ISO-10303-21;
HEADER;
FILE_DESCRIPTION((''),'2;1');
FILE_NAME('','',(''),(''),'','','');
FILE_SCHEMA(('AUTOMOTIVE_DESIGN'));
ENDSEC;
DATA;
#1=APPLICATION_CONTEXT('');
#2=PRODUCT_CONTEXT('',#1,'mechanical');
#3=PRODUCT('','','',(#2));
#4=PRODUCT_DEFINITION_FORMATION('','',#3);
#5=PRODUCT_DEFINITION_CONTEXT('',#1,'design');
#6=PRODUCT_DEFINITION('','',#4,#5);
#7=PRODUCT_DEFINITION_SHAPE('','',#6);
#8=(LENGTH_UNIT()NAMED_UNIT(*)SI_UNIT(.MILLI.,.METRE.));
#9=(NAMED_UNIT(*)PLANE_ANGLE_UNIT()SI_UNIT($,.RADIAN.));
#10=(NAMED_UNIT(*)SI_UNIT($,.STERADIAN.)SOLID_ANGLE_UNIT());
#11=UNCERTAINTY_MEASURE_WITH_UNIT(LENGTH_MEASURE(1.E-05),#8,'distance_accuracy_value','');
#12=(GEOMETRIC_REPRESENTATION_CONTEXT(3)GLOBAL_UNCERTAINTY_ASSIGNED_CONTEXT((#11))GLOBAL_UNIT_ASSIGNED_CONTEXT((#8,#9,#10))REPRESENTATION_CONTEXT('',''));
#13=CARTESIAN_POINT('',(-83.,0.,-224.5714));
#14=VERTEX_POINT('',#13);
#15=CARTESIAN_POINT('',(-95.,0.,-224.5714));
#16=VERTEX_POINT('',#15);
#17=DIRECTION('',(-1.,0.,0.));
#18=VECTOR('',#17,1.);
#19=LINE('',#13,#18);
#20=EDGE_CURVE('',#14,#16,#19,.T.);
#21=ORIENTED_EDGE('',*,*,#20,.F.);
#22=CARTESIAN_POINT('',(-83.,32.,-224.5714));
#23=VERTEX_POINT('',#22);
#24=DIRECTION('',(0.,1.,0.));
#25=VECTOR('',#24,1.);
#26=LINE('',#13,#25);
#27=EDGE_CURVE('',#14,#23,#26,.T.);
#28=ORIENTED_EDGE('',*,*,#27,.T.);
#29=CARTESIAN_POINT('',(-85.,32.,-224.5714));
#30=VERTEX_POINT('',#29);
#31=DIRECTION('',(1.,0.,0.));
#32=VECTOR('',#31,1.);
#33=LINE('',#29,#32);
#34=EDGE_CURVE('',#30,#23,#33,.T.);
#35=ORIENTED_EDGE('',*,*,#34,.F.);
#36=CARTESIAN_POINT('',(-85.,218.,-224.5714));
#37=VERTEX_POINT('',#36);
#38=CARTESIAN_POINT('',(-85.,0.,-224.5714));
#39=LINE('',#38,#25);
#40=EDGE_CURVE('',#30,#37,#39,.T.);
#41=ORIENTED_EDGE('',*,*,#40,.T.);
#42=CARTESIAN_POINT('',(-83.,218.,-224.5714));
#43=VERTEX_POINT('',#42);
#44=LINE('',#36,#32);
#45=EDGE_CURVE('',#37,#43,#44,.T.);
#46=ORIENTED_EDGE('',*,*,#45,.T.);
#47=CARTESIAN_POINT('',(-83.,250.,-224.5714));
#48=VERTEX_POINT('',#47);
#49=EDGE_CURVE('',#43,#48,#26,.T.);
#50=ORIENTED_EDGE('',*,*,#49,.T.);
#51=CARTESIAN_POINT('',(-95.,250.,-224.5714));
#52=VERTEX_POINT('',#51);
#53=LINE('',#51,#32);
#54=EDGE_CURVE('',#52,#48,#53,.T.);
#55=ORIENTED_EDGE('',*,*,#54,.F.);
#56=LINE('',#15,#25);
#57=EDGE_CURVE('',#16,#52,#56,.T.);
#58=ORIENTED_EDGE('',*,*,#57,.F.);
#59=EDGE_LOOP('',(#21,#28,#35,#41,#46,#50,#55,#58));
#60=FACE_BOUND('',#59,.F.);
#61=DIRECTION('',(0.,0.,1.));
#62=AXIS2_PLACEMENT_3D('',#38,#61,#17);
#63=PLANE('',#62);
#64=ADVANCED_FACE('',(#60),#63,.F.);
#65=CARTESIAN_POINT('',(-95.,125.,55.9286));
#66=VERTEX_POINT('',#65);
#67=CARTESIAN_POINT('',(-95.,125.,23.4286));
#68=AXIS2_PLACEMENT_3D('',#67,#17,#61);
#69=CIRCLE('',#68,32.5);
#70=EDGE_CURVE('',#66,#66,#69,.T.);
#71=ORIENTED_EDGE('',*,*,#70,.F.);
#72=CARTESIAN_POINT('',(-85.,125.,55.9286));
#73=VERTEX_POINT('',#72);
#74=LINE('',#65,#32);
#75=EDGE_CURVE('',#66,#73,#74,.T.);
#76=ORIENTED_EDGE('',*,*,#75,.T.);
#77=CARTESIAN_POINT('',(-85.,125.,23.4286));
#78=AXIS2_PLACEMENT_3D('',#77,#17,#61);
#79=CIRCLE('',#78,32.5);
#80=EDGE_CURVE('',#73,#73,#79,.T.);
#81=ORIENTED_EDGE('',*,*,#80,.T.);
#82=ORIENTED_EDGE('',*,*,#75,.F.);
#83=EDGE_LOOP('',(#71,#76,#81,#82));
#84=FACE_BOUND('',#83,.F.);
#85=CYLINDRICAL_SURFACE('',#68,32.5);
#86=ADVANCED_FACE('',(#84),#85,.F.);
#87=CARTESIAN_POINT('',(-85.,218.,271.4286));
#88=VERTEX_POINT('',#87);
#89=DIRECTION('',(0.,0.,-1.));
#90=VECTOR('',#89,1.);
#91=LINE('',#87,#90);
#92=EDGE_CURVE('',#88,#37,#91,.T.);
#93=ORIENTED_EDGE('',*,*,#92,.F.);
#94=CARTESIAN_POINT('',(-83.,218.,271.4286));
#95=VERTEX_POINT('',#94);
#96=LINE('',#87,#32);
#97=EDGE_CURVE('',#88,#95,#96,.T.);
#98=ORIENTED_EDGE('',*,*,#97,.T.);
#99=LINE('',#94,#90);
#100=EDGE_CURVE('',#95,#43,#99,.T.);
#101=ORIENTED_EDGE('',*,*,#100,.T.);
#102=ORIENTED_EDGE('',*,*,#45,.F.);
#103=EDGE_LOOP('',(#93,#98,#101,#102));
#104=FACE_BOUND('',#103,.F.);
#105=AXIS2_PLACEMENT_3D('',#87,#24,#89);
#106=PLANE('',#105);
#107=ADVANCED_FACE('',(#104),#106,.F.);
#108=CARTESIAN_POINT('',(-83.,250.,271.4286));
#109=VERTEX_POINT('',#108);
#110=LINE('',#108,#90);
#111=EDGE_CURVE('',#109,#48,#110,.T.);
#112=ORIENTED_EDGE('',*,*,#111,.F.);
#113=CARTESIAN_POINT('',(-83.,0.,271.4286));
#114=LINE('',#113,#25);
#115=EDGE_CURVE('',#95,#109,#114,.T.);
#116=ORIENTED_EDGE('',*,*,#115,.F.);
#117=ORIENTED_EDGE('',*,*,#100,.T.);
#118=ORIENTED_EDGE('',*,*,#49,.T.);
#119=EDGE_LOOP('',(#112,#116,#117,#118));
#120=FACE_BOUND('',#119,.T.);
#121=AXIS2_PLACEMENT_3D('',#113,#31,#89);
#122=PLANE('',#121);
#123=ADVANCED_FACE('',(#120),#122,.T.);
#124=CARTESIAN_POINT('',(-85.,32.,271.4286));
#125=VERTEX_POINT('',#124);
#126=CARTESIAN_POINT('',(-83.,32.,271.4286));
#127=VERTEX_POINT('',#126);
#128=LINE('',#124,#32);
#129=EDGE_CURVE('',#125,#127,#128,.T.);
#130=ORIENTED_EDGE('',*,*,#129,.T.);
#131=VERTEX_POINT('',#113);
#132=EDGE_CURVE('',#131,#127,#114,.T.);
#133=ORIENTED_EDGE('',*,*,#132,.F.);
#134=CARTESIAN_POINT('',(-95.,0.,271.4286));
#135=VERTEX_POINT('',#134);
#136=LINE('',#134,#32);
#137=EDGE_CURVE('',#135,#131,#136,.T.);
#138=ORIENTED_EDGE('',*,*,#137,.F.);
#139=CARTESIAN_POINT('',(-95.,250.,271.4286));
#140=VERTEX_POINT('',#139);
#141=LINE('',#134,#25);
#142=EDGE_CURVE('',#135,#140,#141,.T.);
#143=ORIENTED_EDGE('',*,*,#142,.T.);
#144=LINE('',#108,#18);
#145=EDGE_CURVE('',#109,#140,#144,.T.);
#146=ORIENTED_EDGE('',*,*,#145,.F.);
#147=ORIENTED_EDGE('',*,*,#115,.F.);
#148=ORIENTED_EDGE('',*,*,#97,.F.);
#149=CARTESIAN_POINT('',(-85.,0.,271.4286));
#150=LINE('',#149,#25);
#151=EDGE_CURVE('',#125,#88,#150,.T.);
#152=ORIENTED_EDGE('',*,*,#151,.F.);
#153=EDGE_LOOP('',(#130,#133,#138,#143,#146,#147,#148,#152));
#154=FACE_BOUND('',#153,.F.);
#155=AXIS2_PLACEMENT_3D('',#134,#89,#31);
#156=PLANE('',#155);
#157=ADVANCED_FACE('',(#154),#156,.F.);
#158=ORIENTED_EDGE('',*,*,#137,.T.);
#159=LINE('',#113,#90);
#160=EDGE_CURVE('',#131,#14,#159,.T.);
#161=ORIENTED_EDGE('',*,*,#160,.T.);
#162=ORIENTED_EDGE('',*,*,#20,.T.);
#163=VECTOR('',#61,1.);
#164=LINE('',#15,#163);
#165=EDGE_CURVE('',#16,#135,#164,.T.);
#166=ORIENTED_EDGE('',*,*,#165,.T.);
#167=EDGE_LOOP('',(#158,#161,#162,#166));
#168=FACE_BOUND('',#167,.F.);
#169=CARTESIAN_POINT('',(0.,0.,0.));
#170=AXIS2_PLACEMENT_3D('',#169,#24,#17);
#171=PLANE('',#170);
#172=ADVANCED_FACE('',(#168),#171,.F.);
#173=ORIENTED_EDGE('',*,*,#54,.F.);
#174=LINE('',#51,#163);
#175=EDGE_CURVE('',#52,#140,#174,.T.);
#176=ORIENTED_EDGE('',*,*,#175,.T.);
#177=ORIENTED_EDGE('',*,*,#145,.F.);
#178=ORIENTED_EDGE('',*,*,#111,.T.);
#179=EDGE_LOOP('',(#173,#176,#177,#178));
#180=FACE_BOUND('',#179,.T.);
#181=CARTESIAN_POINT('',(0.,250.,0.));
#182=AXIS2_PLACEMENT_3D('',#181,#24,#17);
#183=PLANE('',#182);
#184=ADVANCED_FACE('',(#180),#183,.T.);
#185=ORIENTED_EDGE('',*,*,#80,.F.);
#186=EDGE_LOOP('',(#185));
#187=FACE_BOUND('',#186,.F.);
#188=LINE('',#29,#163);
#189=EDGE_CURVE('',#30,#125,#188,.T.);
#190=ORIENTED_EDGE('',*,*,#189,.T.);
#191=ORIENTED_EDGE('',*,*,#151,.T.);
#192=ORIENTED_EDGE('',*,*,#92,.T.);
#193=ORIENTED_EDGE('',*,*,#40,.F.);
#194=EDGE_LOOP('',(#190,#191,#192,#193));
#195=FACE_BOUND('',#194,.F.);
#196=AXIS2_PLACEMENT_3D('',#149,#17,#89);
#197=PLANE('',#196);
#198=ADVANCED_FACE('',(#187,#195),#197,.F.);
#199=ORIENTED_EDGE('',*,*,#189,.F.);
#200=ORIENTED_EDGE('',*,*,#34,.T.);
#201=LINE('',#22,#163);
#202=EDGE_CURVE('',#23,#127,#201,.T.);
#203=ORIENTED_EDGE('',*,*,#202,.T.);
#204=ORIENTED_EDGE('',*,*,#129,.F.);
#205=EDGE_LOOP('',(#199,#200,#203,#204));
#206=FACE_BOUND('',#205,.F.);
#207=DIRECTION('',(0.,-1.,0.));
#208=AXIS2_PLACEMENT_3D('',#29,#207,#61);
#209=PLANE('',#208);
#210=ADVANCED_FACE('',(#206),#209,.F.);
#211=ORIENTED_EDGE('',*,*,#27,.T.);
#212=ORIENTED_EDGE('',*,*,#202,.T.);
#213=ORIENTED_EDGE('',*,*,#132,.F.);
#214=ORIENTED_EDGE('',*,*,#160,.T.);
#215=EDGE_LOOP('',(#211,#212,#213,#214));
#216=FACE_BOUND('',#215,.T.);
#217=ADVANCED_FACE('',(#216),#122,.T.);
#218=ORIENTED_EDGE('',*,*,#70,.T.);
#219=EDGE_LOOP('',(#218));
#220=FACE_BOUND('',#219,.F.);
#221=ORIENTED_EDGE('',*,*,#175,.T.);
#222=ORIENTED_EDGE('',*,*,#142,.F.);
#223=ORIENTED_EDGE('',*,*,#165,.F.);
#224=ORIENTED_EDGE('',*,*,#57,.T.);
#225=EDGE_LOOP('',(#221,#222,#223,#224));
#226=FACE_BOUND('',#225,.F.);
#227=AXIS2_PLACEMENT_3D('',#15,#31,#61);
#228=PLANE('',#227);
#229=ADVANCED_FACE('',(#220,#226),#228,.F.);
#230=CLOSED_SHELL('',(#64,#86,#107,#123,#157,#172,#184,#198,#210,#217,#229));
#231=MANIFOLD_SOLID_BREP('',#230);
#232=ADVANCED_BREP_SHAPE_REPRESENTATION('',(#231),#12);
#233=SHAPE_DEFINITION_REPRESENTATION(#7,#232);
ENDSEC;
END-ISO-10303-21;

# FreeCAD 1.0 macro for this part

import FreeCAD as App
import Part
import Sketcher


def add_polygon(sketch, points):
    """Adds a closed chain of lines whose ends are joined by coincident constraints."""
    first, n = sketch.GeometryCount, len(points)
    for a, b in zip(points, points[1:] + points[:1]):
        sketch.addGeometry(Part.LineSegment(App.Vector(*a, 0), App.Vector(*b, 0)), False)
    for i in range(n):
        sketch.addConstraint(Sketcher.Constraint("Coincident", first + i, 2, first + (i + 1) % n, 1))

doc = App.newDocument("Part")
body = doc.addObject("PartDesign::Body", "Body")

sketch1 = doc.addObject("Sketcher::SketchObject", "Sketch")
body.addObject(sketch1)
sketch1.AttachmentSupport = (doc.XZ_Plane, [""])
sketch1.MapMode = "FlatFace"
add_polygon(sketch1, [(-95, -225), (-95, 271), (-85, 271), (-85, -225)])
sketch1.addConstraint(Sketcher.Constraint("Vertical", 0))
sketch1.addConstraint(Sketcher.Constraint("Horizontal", 1))
sketch1.addConstraint(Sketcher.Constraint("Vertical", 2))
sketch1.addConstraint(Sketcher.Constraint("Horizontal", 3))
sketch1.addConstraint(Sketcher.Constraint("DistanceX", 1, 1, 1, 2, 10.0))
sketch1.addConstraint(Sketcher.Constraint("DistanceY", 0, 1, 0, 2, 496.0))
sketch1.addConstraint(Sketcher.Constraint("DistanceX", 0, 2, -1, 1, 95.0))
sketch1.addConstraint(Sketcher.Constraint("DistanceY", -1, 1, 0, 2, 271.4286))
pad1 = doc.addObject("PartDesign::Pad", "Pad")
body.addObject(pad1)
pad1.Profile = sketch1
pad1.Length = 250
pad1.Reversed = True

sketch2 = doc.addObject("Sketcher::SketchObject", "Sketch001")
body.addObject(sketch2)
sketch2.AttachmentSupport = (doc.YZ_Plane, [""])
sketch2.MapMode = "FlatFace"
sketch2.AttachmentOffset = App.Placement(App.Vector(0, 0, -85), App.Rotation())
add_polygon(sketch2, [(32, 271), (0, 271), (0, -225), (32, -225)])
add_polygon(sketch2, [(250, 271), (218, 271), (218, -225), (250, -225)])
sketch2.addConstraint(Sketcher.Constraint("Horizontal", 0))
sketch2.addConstraint(Sketcher.Constraint("Vertical", 1))
sketch2.addConstraint(Sketcher.Constraint("Horizontal", 2))
sketch2.addConstraint(Sketcher.Constraint("Vertical", 3))
sketch2.addConstraint(Sketcher.Constraint("Horizontal", 4))
sketch2.addConstraint(Sketcher.Constraint("Vertical", 5))
sketch2.addConstraint(Sketcher.Constraint("Horizontal", 6))
sketch2.addConstraint(Sketcher.Constraint("Vertical", 7))
sketch2.addConstraint(Sketcher.Constraint("PointOnObject", 0, 2, -2))
sketch2.addConstraint(Sketcher.Constraint("Horizontal", 3, 2, 4, 2))
sketch2.addConstraint(Sketcher.Constraint("Horizontal", 2, 2, 5, 2))
sketch2.addConstraint(Sketcher.Constraint("Equal", 2, 4))
sketch2.addConstraint(Sketcher.Constraint("DistanceX", 0, 2, 0, 1, 32.0))
sketch2.addConstraint(Sketcher.Constraint("DistanceX", 3, 2, 4, 2, 186.0))
sketch2.addConstraint(Sketcher.Constraint("DistanceY", 1, 2, 1, 1, 496.0))
sketch2.addConstraint(Sketcher.Constraint("DistanceY", -1, 1, 0, 2, 271.4286))
pad2 = doc.addObject("PartDesign::Pad", "Pad001")
body.addObject(pad2)
pad2.Profile = sketch2
pad2.Length = 2

sketch3 = doc.addObject("Sketcher::SketchObject", "Sketch002")
body.addObject(sketch3)
sketch3.AttachmentSupport = (doc.YZ_Plane, [""])
sketch3.MapMode = "FlatFace"
sketch3.AttachmentOffset = App.Placement(App.Vector(0, 0, -95), App.Rotation())
sketch3.addGeometry(Part.Circle(App.Vector(125, 23, 0), App.Vector(0, 0, 1), 32), False)
sketch3.addConstraint(Sketcher.Constraint("Diameter", 0, 65.0))
sketch3.addConstraint(Sketcher.Constraint("DistanceX", -1, 1, 0, 3, 125.0))
sketch3.addConstraint(Sketcher.Constraint("DistanceY", -1, 1, 0, 3, 23.4286))
pocket1 = doc.addObject("PartDesign::Pocket", "Pocket")
body.addObject(pocket1)
pocket1.Profile = sketch3
pocket1.Length = 35
pocket1.Reversed = True

doc.recompute()
